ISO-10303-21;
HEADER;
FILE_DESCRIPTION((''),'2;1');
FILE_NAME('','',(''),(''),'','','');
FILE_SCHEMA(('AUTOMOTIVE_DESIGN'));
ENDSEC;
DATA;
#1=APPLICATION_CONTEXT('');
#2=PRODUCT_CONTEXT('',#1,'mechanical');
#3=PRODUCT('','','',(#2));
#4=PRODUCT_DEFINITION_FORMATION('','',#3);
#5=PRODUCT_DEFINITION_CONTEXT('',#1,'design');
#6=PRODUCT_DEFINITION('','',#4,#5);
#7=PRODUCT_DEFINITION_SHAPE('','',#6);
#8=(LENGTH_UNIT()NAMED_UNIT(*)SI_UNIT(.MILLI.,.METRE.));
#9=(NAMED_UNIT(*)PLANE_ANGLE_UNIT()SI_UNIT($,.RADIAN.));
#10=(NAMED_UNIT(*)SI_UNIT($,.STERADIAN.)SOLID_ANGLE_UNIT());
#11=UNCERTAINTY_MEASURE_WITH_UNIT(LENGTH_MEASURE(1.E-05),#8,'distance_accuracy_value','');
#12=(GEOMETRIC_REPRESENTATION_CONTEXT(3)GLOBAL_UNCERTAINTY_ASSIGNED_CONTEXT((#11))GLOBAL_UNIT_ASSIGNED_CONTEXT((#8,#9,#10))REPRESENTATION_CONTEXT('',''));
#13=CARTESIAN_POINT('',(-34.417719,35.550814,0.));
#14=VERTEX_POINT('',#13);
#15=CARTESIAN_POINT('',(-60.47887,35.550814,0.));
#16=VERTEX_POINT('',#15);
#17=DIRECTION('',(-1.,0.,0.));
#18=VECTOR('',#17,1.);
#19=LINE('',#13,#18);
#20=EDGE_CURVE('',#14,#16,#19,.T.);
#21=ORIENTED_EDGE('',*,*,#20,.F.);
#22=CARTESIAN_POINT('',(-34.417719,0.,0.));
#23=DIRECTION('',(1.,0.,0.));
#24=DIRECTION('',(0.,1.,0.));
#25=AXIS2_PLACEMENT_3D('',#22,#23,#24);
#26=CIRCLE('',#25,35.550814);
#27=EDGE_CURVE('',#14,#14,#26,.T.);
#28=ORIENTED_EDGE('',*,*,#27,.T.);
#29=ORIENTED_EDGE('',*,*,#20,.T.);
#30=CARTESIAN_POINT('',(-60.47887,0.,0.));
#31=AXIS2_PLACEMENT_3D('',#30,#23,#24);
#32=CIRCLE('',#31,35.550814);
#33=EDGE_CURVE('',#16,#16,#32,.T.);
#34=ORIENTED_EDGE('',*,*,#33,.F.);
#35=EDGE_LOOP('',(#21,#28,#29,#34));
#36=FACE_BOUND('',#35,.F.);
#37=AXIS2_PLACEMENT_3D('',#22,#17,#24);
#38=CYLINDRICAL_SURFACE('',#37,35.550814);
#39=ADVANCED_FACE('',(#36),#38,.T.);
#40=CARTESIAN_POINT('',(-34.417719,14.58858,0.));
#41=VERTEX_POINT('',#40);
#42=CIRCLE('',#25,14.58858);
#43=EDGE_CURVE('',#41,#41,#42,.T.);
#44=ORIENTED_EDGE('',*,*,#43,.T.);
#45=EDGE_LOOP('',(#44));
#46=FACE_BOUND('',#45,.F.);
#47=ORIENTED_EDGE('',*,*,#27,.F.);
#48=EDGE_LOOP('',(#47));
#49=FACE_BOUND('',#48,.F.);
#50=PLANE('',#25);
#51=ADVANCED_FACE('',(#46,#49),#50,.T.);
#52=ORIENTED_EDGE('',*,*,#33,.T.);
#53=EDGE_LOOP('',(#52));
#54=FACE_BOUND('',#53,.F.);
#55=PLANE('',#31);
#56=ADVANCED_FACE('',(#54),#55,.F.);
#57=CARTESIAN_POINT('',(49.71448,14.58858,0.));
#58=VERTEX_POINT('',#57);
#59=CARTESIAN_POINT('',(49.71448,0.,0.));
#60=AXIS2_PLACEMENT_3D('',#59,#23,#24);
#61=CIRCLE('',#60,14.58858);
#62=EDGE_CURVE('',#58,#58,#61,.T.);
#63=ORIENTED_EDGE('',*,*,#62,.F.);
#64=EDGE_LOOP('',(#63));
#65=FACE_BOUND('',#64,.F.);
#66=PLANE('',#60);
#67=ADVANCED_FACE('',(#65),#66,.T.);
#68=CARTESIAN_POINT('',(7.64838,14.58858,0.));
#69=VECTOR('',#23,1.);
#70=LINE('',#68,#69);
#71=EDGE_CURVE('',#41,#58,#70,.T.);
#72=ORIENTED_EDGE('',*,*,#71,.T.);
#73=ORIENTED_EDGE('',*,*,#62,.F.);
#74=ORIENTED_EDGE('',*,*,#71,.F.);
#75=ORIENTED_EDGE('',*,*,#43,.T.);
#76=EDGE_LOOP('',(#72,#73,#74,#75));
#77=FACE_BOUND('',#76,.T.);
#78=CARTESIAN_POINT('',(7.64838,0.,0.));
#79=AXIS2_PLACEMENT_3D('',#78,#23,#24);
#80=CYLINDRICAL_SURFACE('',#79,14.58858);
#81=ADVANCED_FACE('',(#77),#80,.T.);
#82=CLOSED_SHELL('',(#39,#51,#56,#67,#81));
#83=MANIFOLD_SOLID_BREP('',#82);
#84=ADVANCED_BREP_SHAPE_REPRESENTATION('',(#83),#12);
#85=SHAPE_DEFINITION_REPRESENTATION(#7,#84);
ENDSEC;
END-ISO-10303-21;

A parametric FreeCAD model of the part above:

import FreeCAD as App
import Part
import Sketcher


def add_polygon(sketch, points):
    """Adds a closed chain of lines whose ends are joined by coincident constraints."""
    first, n = sketch.GeometryCount, len(points)
    for a, b in zip(points, points[1:] + points[:1]):
        sketch.addGeometry(Part.LineSegment(App.Vector(*a, 0), App.Vector(*b, 0)), False)
    for i in range(n):
        sketch.addConstraint(Sketcher.Constraint("Coincident", first + i, 2, first + (i + 1) % n, 1))

doc = App.newDocument("Part")
params = doc.addObject("Spreadsheet::Sheet", "Params")
for row, (alias, value) in enumerate([
    ("revolution_angle", "360 deg"),
], start=1):
    params.set(f"A{row}", alias)
    params.set(f"B{row}", "=" + value)
    params.setAlias(f"B{row}", alias)

body = doc.addObject("PartDesign::Body", "Body")

# Sketch on XY plane
sketch1 = doc.addObject("Sketcher::SketchObject", "Sketch")
body.addObject(sketch1)
sketch1.AttachmentSupport = (doc.XY_Plane, [""])
sketch1.MapMode = "FlatFace"
add_polygon(sketch1, [(-34.417719, 35.550814), (-60.47887, 35.550814), (-60.47887, 0), (49.71448, 0), (49.71448, 14.58858), (-34.417719, 14.58858)])  # lines 0-5
sketch1.addConstraint(Sketcher.Constraint("Horizontal", 0))
sketch1.addConstraint(Sketcher.Constraint("Vertical", 1))
sketch1.addConstraint(Sketcher.Constraint("Horizontal", 2))
sketch1.addConstraint(Sketcher.Constraint("Vertical", 3))
sketch1.addConstraint(Sketcher.Constraint("Horizontal", 4))
sketch1.addConstraint(Sketcher.Constraint("Vertical", 5))
sketch1.addConstraint(Sketcher.Constraint("PointOnObject", 1, 2, -1))
sketch1.addConstraint(Sketcher.Constraint("DistanceX", 4, 2, 4, 1, 84.132199))
sketch1.addConstraint(Sketcher.Constraint("DistanceX", 0, 2, 0, 1, 26.061151))
sketch1.addConstraint(Sketcher.Constraint("DistanceY", 3, 1, 3, 2, 14.58858))
sketch1.addConstraint(Sketcher.Constraint("DistanceY", 1, 2, 1, 1, 35.550814))
sketch1.addConstraint(Sketcher.Constraint("DistanceX", 0, 2, -1, 1, 60.47887))
revolution = doc.addObject("PartDesign::Revolution", "Revolution")
body.addObject(revolution)
revolution.Profile = sketch1
revolution.ReferenceAxis = (sketch1, ["H_Axis"])
revolution.setExpression("Angle", "Params.revolution_angle")

doc.recompute()
